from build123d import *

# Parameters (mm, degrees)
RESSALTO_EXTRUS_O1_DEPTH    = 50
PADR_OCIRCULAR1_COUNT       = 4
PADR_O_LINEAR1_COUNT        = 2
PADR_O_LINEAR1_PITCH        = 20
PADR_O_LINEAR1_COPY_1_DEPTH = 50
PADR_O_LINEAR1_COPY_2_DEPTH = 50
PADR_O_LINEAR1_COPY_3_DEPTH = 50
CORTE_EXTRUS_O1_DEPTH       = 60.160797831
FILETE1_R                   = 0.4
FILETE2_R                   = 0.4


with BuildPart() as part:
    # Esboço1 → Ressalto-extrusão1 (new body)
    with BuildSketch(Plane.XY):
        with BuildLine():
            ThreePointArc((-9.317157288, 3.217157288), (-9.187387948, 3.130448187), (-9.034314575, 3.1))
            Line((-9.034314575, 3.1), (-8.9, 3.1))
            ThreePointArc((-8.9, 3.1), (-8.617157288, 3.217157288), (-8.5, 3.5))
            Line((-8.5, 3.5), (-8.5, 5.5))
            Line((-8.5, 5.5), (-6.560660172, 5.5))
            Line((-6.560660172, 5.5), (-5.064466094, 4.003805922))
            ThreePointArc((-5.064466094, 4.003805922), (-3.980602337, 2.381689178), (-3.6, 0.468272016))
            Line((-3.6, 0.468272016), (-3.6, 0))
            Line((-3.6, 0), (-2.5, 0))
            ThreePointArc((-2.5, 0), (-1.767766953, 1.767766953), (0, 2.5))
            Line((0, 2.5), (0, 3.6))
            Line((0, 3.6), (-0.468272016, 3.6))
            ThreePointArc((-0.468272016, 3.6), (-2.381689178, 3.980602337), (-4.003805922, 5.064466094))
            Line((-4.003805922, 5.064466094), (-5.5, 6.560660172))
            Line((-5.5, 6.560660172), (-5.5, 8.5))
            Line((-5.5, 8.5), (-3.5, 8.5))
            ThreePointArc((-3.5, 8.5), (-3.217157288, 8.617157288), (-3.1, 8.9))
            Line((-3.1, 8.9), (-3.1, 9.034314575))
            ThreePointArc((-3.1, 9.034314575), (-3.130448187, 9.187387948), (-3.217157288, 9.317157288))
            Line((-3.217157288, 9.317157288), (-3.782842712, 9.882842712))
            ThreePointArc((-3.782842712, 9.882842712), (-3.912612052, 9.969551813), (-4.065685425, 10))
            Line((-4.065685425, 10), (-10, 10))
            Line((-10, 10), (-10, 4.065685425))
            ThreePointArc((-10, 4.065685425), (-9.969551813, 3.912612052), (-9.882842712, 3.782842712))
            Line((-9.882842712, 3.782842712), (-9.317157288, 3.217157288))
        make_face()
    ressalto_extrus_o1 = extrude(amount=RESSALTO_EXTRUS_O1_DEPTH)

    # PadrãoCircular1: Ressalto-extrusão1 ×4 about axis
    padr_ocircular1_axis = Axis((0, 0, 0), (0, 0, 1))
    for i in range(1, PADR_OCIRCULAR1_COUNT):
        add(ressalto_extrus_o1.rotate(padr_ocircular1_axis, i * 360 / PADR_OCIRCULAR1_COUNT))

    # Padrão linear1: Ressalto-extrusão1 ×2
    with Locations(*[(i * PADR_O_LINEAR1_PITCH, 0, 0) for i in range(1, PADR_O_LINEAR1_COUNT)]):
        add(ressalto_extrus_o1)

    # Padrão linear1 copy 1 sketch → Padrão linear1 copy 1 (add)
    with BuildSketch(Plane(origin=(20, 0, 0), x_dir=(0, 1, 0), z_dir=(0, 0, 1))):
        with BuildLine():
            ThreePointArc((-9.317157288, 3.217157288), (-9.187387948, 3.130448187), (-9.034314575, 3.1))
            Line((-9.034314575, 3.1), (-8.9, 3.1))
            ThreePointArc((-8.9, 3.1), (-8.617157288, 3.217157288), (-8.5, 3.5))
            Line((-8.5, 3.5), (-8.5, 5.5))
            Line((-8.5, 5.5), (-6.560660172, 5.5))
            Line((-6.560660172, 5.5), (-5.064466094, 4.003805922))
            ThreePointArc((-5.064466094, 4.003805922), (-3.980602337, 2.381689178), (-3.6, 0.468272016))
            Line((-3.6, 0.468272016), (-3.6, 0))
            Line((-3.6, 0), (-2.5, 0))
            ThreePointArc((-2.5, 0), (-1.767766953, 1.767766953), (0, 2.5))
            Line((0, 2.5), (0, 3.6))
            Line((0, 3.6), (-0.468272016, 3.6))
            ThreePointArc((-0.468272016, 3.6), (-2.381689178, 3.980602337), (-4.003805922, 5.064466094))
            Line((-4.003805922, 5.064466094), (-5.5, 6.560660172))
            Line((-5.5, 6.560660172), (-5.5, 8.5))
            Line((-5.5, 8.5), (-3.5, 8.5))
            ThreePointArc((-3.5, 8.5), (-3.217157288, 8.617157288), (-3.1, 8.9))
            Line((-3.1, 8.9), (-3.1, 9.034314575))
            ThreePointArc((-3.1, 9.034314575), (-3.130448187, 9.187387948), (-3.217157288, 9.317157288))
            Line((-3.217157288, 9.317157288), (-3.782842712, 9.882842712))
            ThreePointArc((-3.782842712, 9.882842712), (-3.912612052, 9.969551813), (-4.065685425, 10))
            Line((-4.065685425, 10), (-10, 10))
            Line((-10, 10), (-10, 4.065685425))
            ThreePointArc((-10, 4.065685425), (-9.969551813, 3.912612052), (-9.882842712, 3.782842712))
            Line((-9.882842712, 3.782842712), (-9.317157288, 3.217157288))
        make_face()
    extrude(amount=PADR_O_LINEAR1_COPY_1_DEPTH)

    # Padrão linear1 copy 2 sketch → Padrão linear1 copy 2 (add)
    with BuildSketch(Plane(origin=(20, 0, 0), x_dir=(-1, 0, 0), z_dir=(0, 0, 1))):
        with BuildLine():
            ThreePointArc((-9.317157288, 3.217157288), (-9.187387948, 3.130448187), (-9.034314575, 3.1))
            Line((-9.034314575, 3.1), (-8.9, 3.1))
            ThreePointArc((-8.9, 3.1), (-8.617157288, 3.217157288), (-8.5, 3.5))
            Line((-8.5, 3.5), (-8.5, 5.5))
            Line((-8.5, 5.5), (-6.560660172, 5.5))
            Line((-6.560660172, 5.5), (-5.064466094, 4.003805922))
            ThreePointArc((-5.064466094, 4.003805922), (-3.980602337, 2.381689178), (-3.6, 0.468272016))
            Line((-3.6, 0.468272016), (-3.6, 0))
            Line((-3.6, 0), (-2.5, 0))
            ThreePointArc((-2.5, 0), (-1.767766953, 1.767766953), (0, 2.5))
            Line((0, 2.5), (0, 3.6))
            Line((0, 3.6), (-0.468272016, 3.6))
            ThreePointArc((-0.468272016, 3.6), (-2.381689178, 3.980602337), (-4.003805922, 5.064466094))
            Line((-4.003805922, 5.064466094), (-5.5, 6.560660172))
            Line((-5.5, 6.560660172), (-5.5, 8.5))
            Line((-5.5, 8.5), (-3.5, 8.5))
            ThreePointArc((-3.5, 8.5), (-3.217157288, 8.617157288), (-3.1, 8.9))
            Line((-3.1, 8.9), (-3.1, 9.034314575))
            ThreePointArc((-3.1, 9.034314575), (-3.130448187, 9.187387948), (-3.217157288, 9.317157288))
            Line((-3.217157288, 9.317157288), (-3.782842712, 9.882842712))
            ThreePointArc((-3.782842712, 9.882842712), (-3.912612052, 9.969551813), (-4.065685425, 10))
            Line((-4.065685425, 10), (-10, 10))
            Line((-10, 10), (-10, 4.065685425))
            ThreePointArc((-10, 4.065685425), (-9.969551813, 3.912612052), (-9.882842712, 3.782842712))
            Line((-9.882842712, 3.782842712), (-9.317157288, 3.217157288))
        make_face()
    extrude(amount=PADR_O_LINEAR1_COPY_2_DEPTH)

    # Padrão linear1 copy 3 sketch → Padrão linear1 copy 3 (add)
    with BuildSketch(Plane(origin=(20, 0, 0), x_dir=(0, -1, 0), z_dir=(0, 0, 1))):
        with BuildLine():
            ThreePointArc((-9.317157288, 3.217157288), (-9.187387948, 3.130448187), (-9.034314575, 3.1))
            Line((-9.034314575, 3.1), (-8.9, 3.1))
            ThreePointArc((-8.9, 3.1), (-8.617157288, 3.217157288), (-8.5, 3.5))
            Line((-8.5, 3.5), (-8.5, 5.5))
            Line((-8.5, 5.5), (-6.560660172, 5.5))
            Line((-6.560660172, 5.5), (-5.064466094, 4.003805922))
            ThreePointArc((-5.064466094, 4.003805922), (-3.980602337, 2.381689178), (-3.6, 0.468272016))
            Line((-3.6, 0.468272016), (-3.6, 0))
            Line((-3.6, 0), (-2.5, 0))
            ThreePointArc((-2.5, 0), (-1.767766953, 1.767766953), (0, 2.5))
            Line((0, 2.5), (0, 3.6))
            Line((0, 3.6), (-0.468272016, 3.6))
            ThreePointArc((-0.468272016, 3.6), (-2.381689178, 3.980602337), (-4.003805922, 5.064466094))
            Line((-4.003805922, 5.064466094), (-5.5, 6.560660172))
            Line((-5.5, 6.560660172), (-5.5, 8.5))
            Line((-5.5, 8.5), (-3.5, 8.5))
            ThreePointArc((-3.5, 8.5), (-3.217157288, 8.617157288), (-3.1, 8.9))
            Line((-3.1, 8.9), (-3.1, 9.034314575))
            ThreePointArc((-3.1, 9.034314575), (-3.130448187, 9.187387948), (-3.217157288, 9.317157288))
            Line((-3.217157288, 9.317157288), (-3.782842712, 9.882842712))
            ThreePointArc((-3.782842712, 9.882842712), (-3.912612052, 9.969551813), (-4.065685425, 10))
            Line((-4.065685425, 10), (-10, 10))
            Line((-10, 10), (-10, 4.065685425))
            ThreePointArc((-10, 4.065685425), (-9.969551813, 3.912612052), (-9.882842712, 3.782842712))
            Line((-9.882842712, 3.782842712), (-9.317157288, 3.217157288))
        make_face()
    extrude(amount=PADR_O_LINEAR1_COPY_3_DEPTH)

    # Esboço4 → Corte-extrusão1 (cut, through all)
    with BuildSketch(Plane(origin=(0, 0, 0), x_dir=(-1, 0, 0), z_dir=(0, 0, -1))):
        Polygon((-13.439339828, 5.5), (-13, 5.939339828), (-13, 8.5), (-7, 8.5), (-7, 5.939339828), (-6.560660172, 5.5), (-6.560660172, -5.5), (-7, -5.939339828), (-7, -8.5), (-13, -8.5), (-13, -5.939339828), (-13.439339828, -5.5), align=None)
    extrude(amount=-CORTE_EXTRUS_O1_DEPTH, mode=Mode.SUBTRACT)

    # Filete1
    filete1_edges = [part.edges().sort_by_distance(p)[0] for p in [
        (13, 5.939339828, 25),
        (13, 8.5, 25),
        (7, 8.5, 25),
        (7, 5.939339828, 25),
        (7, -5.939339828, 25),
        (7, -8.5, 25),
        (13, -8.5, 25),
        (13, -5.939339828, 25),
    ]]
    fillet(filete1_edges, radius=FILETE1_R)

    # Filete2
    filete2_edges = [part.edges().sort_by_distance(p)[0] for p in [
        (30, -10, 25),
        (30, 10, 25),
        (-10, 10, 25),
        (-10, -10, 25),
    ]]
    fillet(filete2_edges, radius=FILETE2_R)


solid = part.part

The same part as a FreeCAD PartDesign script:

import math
import FreeCAD as App
import Part
import Sketcher
from FreeCAD import Vector
Q = App.Units.Quantity


def edges_at(feature, points):
    """Names of the edges that pass closest to the given points."""
    edges = feature.Shape.Edges
    near = lambda p: min(range(len(edges)), key=lambda i: edges[i].distToShape(Part.Vertex(*p))[0])
    return sorted({f"Edge{near(p) + 1}" for p in points})


def add_polygon(sketch, points):
    """Adds a closed chain of lines whose ends are joined by coincident constraints."""
    first, n = sketch.GeometryCount, len(points)
    for a, b in zip(points, points[1:] + points[:1]):
        sketch.addGeometry(Part.LineSegment(App.Vector(*a, 0), App.Vector(*b, 0)), False)
    for i in range(n):
        sketch.addConstraint(Sketcher.Constraint("Coincident", first + i, 2, first + (i + 1) % n, 1))

doc = App.newDocument("Part")
params = doc.addObject("Spreadsheet::Sheet", "Params")
for row, (alias, value) in enumerate([
    ("sketch1_radius", "5 mm"),
    ("sketch1_radius2", "0.4 mm"),
    ("sketch1_radius3", "2.5 mm"),
    ("sketch1_width", "2 mm"),
    ("sketch1_width2", "1.1 mm"),
    ("pad1_length", "50 mm"),
    ("linearpattern_pitch", "20 mm"),
    ("sketch2_radius", "5 mm"),
    ("sketch2_radius2", "0.4 mm"),
    ("sketch2_radius3", "2.5 mm"),
    ("sketch2_width", "2 mm"),
    ("sketch2_width2", "1.1 mm"),
    ("pad2_length", "50 mm"),
    ("sketch3_radius", "5 mm"),
    ("sketch3_radius2", "0.4 mm"),
    ("sketch3_radius3", "2.5 mm"),
    ("sketch3_width", "2 mm"),
    ("sketch3_width2", "1.1 mm"),
    ("pad3_length", "50 mm"),
    ("sketch4_radius", "5 mm"),
    ("sketch4_radius2", "0.4 mm"),
    ("sketch4_radius3", "2.5 mm"),
    ("sketch4_width", "2 mm"),
    ("sketch4_width2", "1.1 mm"),
    ("pad4_length", "50 mm"),
    ("sketch5_width", "6 mm"),
    ("sketch5_height", "11 mm"),
    ("fillet_radius", "0.4 mm"),
    ("fillet2_radius", "0.4 mm"),
], start=1):
    params.set(f"A{row}", alias)
    params.set(f"B{row}", "=" + value)
    params.setAlias(f"B{row}", alias)

body = doc.addObject("PartDesign::Body", "Body")

# Sketch on XY plane
sketch1 = body.newObject("Sketcher::SketchObject", "Sketch")
sketch1.AttachmentSupport = (doc.getObject("XY_Plane"), [""])
sketch1.MapMode = "FlatFace"
sketch1.addGeometry([
    Part.ArcOfCircle(Part.Circle(Vector(-9.03, 3.5, 0), Vector(0, 0, 1), 0.4), math.radians(-135), math.radians(-90)),  # 0
    Part.LineSegment(Vector(-9.03, 3.1, 0), Vector(-8.9, 3.1, 0)),  # 1
    Part.ArcOfCircle(Part.Circle(Vector(-8.9, 3.5, 0), Vector(0, 0, 1), 0.4), math.radians(-90), math.radians(0)),  # 2
    Part.LineSegment(Vector(-8.5, 3.5, 0), Vector(-8.5, 5.5, 0)),  # 3
    Part.LineSegment(Vector(-8.5, 5.5, 0), Vector(-6.56, 5.5, 0)),  # 4
    Part.LineSegment(Vector(-6.56, 5.5, 0), Vector(-5.06, 4, 0)),  # 5
    Part.ArcOfCircle(Part.Circle(Vector(-8.6, 0.47, 0), Vector(0, 0, 1), 5), math.radians(0), math.radians(45)),  # 6
    Part.LineSegment(Vector(-3.6, 0.47, 0), Vector(-3.6, 0, 0)),  # 7
    Part.LineSegment(Vector(-3.6, 0, 0), Vector(-2.5, 0, 0)),  # 8
    Part.ArcOfCircle(Part.Circle(Vector(0, 0, 0), Vector(0, 0, 1), 2.5), math.radians(90), math.radians(180)),  # 9
    Part.LineSegment(Vector(0, 2.5, 0), Vector(0, 3.6, 0)),  # 10
    Part.LineSegment(Vector(0, 3.6, 0), Vector(-0.47, 3.6, 0)),  # 11
    Part.ArcOfCircle(Part.Circle(Vector(-0.47, 8.6, 0), Vector(0, 0, 1), 5), math.radians(-135), math.radians(-90)),  # 12
    Part.LineSegment(Vector(-4, 5.06, 0), Vector(-5.5, 6.56, 0)),  # 13
    Part.LineSegment(Vector(-5.5, 6.56, 0), Vector(-5.5, 8.5, 0)),  # 14
    Part.LineSegment(Vector(-5.5, 8.5, 0), Vector(-3.5, 8.5, 0)),  # 15
    Part.ArcOfCircle(Part.Circle(Vector(-3.5, 8.9, 0), Vector(0, 0, 1), 0.4), math.radians(-90), math.radians(0)),  # 16
    Part.LineSegment(Vector(-3.1, 8.9, 0), Vector(-3.1, 9.03, 0)),  # 17
    Part.ArcOfCircle(Part.Circle(Vector(-3.5, 9.03, 0), Vector(0, 0, 1), 0.4), math.radians(0), math.radians(45)),  # 18
    Part.LineSegment(Vector(-3.22, 9.32, 0), Vector(-3.78, 9.88, 0)),  # 19
    Part.ArcOfCircle(Part.Circle(Vector(-4.07, 9.6, 0), Vector(0, 0, 1), 0.4), math.radians(45), math.radians(90)),  # 20
    Part.LineSegment(Vector(-4.07, 10, 0), Vector(-10, 10, 0)),  # 21
    Part.LineSegment(Vector(-10, 10, 0), Vector(-10, 4.07, 0)),  # 22
    Part.ArcOfCircle(Part.Circle(Vector(-9.6, 4.07, 0), Vector(0, 0, 1), 0.4), math.radians(180), math.radians(225)),  # 23
    Part.LineSegment(Vector(-9.88, 3.78, 0), Vector(-9.32, 3.22, 0)),  # 24
], False)
sketch1.addConstraint([
    Sketcher.Constraint("Tangent", 0, 2, 1, 1),
    Sketcher.Constraint("Tangent", 1, 2, 2, 1),
    Sketcher.Constraint("Tangent", 2, 2, 3, 1),
    Sketcher.Constraint("Coincident", 3, 2, 4, 1),
    Sketcher.Constraint("Coincident", 4, 2, 5, 1),
    Sketcher.Constraint("Tangent", 5, 2, 6, 2),
    Sketcher.Constraint("Tangent", 6, 1, 7, 1),
    Sketcher.Constraint("Coincident", 7, 2, 8, 1),
    Sketcher.Constraint("Coincident", 8, 2, 9, 2),
    Sketcher.Constraint("Coincident", 9, 1, 10, 1),
    Sketcher.Constraint("Coincident", 10, 2, 11, 1),
    Sketcher.Constraint("Tangent", 11, 2, 12, 2),
    Sketcher.Constraint("Tangent", 12, 1, 13, 1),
    Sketcher.Constraint("Coincident", 13, 2, 14, 1),
    Sketcher.Constraint("Coincident", 14, 2, 15, 1),
    Sketcher.Constraint("Tangent", 15, 2, 16, 1),
    Sketcher.Constraint("Tangent", 16, 2, 17, 1),
    Sketcher.Constraint("Tangent", 17, 2, 18, 1),
    Sketcher.Constraint("Tangent", 18, 2, 19, 1),
    Sketcher.Constraint("Tangent", 19, 2, 20, 1),
    Sketcher.Constraint("Tangent", 20, 2, 21, 1),
    Sketcher.Constraint("Coincident", 21, 2, 22, 1),
    Sketcher.Constraint("Tangent", 22, 2, 23, 1),
    Sketcher.Constraint("Tangent", 23, 2, 24, 1),
    Sketcher.Constraint("Tangent", 24, 2, 0, 1),
    Sketcher.Constraint("Horizontal", 1),
    Sketcher.Constraint("Vertical", 3),
    Sketcher.Constraint("Horizontal", 4),
    Sketcher.Constraint("Vertical", 7),
    Sketcher.Constraint("Horizontal", 8),
    Sketcher.Constraint("Vertical", 10),
    Sketcher.Constraint("Horizontal", 11),
    Sketcher.Constraint("Vertical", 14),
    Sketcher.Constraint("Horizontal", 15),
    Sketcher.Constraint("Vertical", 17),
    Sketcher.Constraint("Horizontal", 21),
    Sketcher.Constraint("Vertical", 22),
    Sketcher.Constraint("Coincident", 9, 3, -1, 1),
    Sketcher.Constraint("Equal", 0, 2),
    Sketcher.Constraint("Equal", 6, 12),
    Sketcher.Constraint("Equal", 2, 16),
    Sketcher.Constraint("Equal", 16, 18),
    Sketcher.Constraint("Equal", 18, 20),
    Sketcher.Constraint("Equal", 20, 23),
    Sketcher.Constraint("PointOnObject", 7, 2, -1),
    Sketcher.Constraint("PointOnObject", 9, 1, -2),
    Sketcher.Constraint("Parallel", 5, 13),
    Sketcher.Constraint("Parallel", 13, 19),
    Sketcher.Constraint("Parallel", 19, 24),
    Sketcher.Constraint("Equal", 15, 3),
    Sketcher.Constraint("Equal", 11, 7),
    Sketcher.Constraint("Equal", 8, 10),
    Sketcher.Constraint("Equal", 4, 14),
    Sketcher.Constraint("Equal", 1, 17),
    Sketcher.Constraint("Equal", 21, 22),
    Sketcher.Constraint("Equal", 5, 13),
    Sketcher.Constraint("Equal", 19, 24),
    Sketcher.Constraint("Radius", 6, 5.0),
    Sketcher.Constraint("Radius", 0, 0.4),
    Sketcher.Constraint("Radius", 9, 2.5),
    Sketcher.Constraint("DistanceX", 15, 1, 15, 2, 2.0),
    Sketcher.Constraint("DistanceX", 8, 1, 8, 2, 1.1),
    Sketcher.Constraint("DistanceY", -1, 1, 20, 2, 10.0),
    Sketcher.Constraint("DistanceY", 4, 2, 14, 2, 3.0),
    Sketcher.Constraint("Distance", 19, 0.8),
    Sketcher.Constraint("DistanceY", -1, 1, 0, 3, 3.5),
    Sketcher.Constraint("DistanceX", 4, 1, 4, 2, 1.93934),
])
sketch1.setExpression("Constraints[57]", "Params.sketch1_radius")
sketch1.setExpression("Constraints[58]", "Params.sketch1_radius2")
sketch1.setExpression("Constraints[59]", "Params.sketch1_radius3")
sketch1.setExpression("Constraints[60]", "Params.sketch1_width")
sketch1.setExpression("Constraints[61]", "Params.sketch1_width2")
pad1 = body.newObject("PartDesign::Pad", "Pad")
pad1.Profile = sketch1
pad1.setExpression("Length", "Params.pad1_length")
doc.recompute()

polarpattern = body.newObject("PartDesign::PolarPattern", "PolarPattern")
polarpattern.Originals = [pad1]
polarpattern.Axis = (doc.getObject("Z_Axis"), [""])
polarpattern.Angle = 360
polarpattern.Occurrences = 4
body.Tip = polarpattern
doc.recompute()

linearpattern = body.newObject("PartDesign::LinearPattern", "LinearPattern")
linearpattern.Originals = [pad1]
linearpattern.Direction = (doc.getObject("X_Axis"), [""])
linearpattern.Mode = "offset"
linearpattern.setExpression("Offset", "Params.linearpattern_pitch")
linearpattern.Occurrences = 2
body.Tip = linearpattern

# Sketch on XY plane
sketch2 = body.newObject("Sketcher::SketchObject", "Sketch001")
sketch2.AttachmentSupport = (doc.getObject("XY_Plane"), [""])
sketch2.MapMode = "FlatFace"
sketch2.addGeometry([
    Part.ArcOfCircle(Part.Circle(Vector(16.5, -9.03, 0), Vector(0, 0, 1), 0.4), math.radians(-45), math.radians(0)),  # 0
    Part.LineSegment(Vector(16.9, -9.03, 0), Vector(16.9, -8.9, 0)),  # 1
    Part.ArcOfCircle(Part.Circle(Vector(16.5, -8.9, 0), Vector(0, 0, 1), 0.4), math.radians(0), math.radians(90)),  # 2
    Part.LineSegment(Vector(16.5, -8.5, 0), Vector(14.5, -8.5, 0)),  # 3
    Part.LineSegment(Vector(14.5, -8.5, 0), Vector(14.5, -6.56, 0)),  # 4
    Part.LineSegment(Vector(14.5, -6.56, 0), Vector(16, -5.06, 0)),  # 5
    Part.ArcOfCircle(Part.Circle(Vector(19.53, -8.6, 0), Vector(0, 0, 1), 5), math.radians(90), math.radians(135)),  # 6
    Part.LineSegment(Vector(19.53, -3.6, 0), Vector(20, -3.6, 0)),  # 7
    Part.LineSegment(Vector(20, -3.6, 0), Vector(20, -2.5, 0)),  # 8
    Part.ArcOfCircle(Part.Circle(Vector(20, 0, 0), Vector(0, 0, 1), 2.5), math.radians(180), math.radians(270)),  # 9
    Part.LineSegment(Vector(17.5, 0, 0), Vector(16.4, 0, 0)),  # 10
    Part.LineSegment(Vector(16.4, 0, 0), Vector(16.4, -0.47, 0)),  # 11
    Part.ArcOfCircle(Part.Circle(Vector(11.4, -0.47, 0), Vector(0, 0, 1), 5), math.radians(-45), math.radians(0)),  # 12
    Part.LineSegment(Vector(14.94, -4, 0), Vector(13.44, -5.5, 0)),  # 13
    Part.LineSegment(Vector(13.44, -5.5, 0), Vector(11.5, -5.5, 0)),  # 14
    Part.LineSegment(Vector(11.5, -5.5, 0), Vector(11.5, -3.5, 0)),  # 15
    Part.ArcOfCircle(Part.Circle(Vector(11.1, -3.5, 0), Vector(0, 0, 1), 0.4), math.radians(0), math.radians(90)),  # 16
    Part.LineSegment(Vector(11.1, -3.1, 0), Vector(10.97, -3.1, 0)),  # 17
    Part.ArcOfCircle(Part.Circle(Vector(10.97, -3.5, 0), Vector(0, 0, 1), 0.4), math.radians(90), math.radians(135)),  # 18
    Part.LineSegment(Vector(10.68, -3.22, 0), Vector(10.12, -3.78, 0)),  # 19
    Part.ArcOfCircle(Part.Circle(Vector(10.4, -4.07, 0), Vector(0, 0, 1), 0.4), math.radians(135), math.radians(180)),  # 20
    Part.LineSegment(Vector(10, -4.07, 0), Vector(10, -10, 0)),  # 21
    Part.LineSegment(Vector(10, -10, 0), Vector(15.93, -10, 0)),  # 22
    Part.ArcOfCircle(Part.Circle(Vector(15.93, -9.6, 0), Vector(0, 0, 1), 0.4), math.radians(-90), math.radians(-45)),  # 23
    Part.LineSegment(Vector(16.22, -9.88, 0), Vector(16.78, -9.32, 0)),  # 24
], False)
sketch2.addConstraint([
    Sketcher.Constraint("Tangent", 0, 2, 1, 1),
    Sketcher.Constraint("Tangent", 1, 2, 2, 1),
    Sketcher.Constraint("Tangent", 2, 2, 3, 1),
    Sketcher.Constraint("Coincident", 3, 2, 4, 1),
    Sketcher.Constraint("Coincident", 4, 2, 5, 1),
    Sketcher.Constraint("Tangent", 5, 2, 6, 2),
    Sketcher.Constraint("Tangent", 6, 1, 7, 1),
    Sketcher.Constraint("Coincident", 7, 2, 8, 1),
    Sketcher.Constraint("Coincident", 8, 2, 9, 2),
    Sketcher.Constraint("Coincident", 9, 1, 10, 1),
    Sketcher.Constraint("Coincident", 10, 2, 11, 1),
    Sketcher.Constraint("Tangent", 11, 2, 12, 2),
    Sketcher.Constraint("Tangent", 12, 1, 13, 1),
    Sketcher.Constraint("Coincident", 13, 2, 14, 1),
    Sketcher.Constraint("Coincident", 14, 2, 15, 1),
    Sketcher.Constraint("Tangent", 15, 2, 16, 1),
    Sketcher.Constraint("Tangent", 16, 2, 17, 1),
    Sketcher.Constraint("Tangent", 17, 2, 18, 1),
    Sketcher.Constraint("Tangent", 18, 2, 19, 1),
    Sketcher.Constraint("Tangent", 19, 2, 20, 1),
    Sketcher.Constraint("Tangent", 20, 2, 21, 1),
    Sketcher.Constraint("Coincident", 21, 2, 22, 1),
    Sketcher.Constraint("Tangent", 22, 2, 23, 1),
    Sketcher.Constraint("Tangent", 23, 2, 24, 1),
    Sketcher.Constraint("Tangent", 24, 2, 0, 1),
    Sketcher.Constraint("Vertical", 1),
    Sketcher.Constraint("Horizontal", 3),
    Sketcher.Constraint("Vertical", 4),
    Sketcher.Constraint("Horizontal", 7),
    Sketcher.Constraint("Vertical", 8),
    Sketcher.Constraint("Horizontal", 10),
    Sketcher.Constraint("Vertical", 11),
    Sketcher.Constraint("Horizontal", 14),
    Sketcher.Constraint("Vertical", 15),
    Sketcher.Constraint("Horizontal", 17),
    Sketcher.Constraint("Vertical", 21),
    Sketcher.Constraint("Horizontal", 22),
    Sketcher.Constraint("Equal", 0, 2),
    Sketcher.Constraint("Equal", 6, 12),
    Sketcher.Constraint("Equal", 2, 16),
    Sketcher.Constraint("Equal", 16, 18),
    Sketcher.Constraint("Equal", 18, 20),
    Sketcher.Constraint("Equal", 20, 23),
    Sketcher.Constraint("PointOnObject", 9, 3, -1),
    Sketcher.Constraint("PointOnObject", 9, 1, -1),
    Sketcher.Constraint("Parallel", 5, 13),
    Sketcher.Constraint("Parallel", 13, 19),
    Sketcher.Constraint("Parallel", 19, 24),
    Sketcher.Constraint("Vertical", 9, 3, 7, 2),
    Sketcher.Constraint("Equal", 17, 1),
    Sketcher.Constraint("Equal", 14, 4),
    Sketcher.Constraint("Equal", 10, 8),
    Sketcher.Constraint("Equal", 7, 11),
    Sketcher.Constraint("Equal", 3, 15),
    Sketcher.Constraint("Equal", 22, 21),
    Sketcher.Constraint("Equal", 5, 13),
    Sketcher.Constraint("Equal", 19, 24),
    Sketcher.Constraint("Radius", 6, 5.0),
    Sketcher.Constraint("Radius", 0, 0.4),
    Sketcher.Constraint("Radius", 9, 2.5),
    Sketcher.Constraint("DistanceX", 3, 2, 3, 1, 2.0),
    Sketcher.Constraint("DistanceX", 10, 2, 10, 1, 1.1),
    Sketcher.Constraint("DistanceX", -1, 1, 9, 3, 20.0),
    Sketcher.Constraint("DistanceX", -1, 1, 20, 2, 10.0),
    Sketcher.Constraint("DistanceX", 14, 2, 4, 2, 3.0),
    Sketcher.Constraint("Distance", 19, 0.8),
    Sketcher.Constraint("DistanceX", -1, 1, 0, 3, 16.5),
    Sketcher.Constraint("DistanceX", 14, 2, 14, 1, 1.93934),
])
sketch2.setExpression("Constraints[57]", "Params.sketch2_radius")
sketch2.setExpression("Constraints[58]", "Params.sketch2_radius2")
sketch2.setExpression("Constraints[59]", "Params.sketch2_radius3")
sketch2.setExpression("Constraints[60]", "Params.sketch2_width")
sketch2.setExpression("Constraints[61]", "Params.sketch2_width2")
pad2 = body.newObject("PartDesign::Pad", "Pad001")
pad2.Profile = sketch2
pad2.setExpression("Length", "Params.pad2_length")

# Sketch on XY plane
sketch3 = body.newObject("Sketcher::SketchObject", "Sketch002")
sketch3.AttachmentSupport = (doc.getObject("XY_Plane"), [""])
sketch3.MapMode = "FlatFace"
sketch3.addGeometry([
    Part.ArcOfCircle(Part.Circle(Vector(29.03, -3.5, 0), Vector(0, 0, 1), 0.4), math.radians(45), math.radians(90)),  # 0
    Part.LineSegment(Vector(29.03, -3.1, 0), Vector(28.9, -3.1, 0)),  # 1
    Part.ArcOfCircle(Part.Circle(Vector(28.9, -3.5, 0), Vector(0, 0, 1), 0.4), math.radians(90), math.radians(180)),  # 2
    Part.LineSegment(Vector(28.5, -3.5, 0), Vector(28.5, -5.5, 0)),  # 3
    Part.LineSegment(Vector(28.5, -5.5, 0), Vector(26.56, -5.5, 0)),  # 4
    Part.LineSegment(Vector(26.56, -5.5, 0), Vector(25.06, -4, 0)),  # 5
    Part.ArcOfCircle(Part.Circle(Vector(28.6, -0.47, 0), Vector(0, 0, 1), 5), math.radians(180), math.radians(225)),  # 6
    Part.LineSegment(Vector(23.6, -0.47, 0), Vector(23.6, 0, 0)),  # 7
    Part.LineSegment(Vector(23.6, 0, 0), Vector(22.5, 0, 0)),  # 8
    Part.ArcOfCircle(Part.Circle(Vector(20, 0, 0), Vector(0, 0, 1), 2.5), math.radians(-90), math.radians(0)),  # 9
    Part.LineSegment(Vector(20, -2.5, 0), Vector(20, -3.6, 0)),  # 10
    Part.LineSegment(Vector(20, -3.6, 0), Vector(20.47, -3.6, 0)),  # 11
    Part.ArcOfCircle(Part.Circle(Vector(20.47, -8.6, 0), Vector(0, 0, 1), 5), math.radians(45), math.radians(90)),  # 12
    Part.LineSegment(Vector(24, -5.06, 0), Vector(25.5, -6.56, 0)),  # 13
    Part.LineSegment(Vector(25.5, -6.56, 0), Vector(25.5, -8.5, 0)),  # 14
    Part.LineSegment(Vector(25.5, -8.5, 0), Vector(23.5, -8.5, 0)),  # 15
    Part.ArcOfCircle(Part.Circle(Vector(23.5, -8.9, 0), Vector(0, 0, 1), 0.4), math.radians(90), math.radians(180)),  # 16
    Part.LineSegment(Vector(23.1, -8.9, 0), Vector(23.1, -9.03, 0)),  # 17
    Part.ArcOfCircle(Part.Circle(Vector(23.5, -9.03, 0), Vector(0, 0, 1), 0.4), math.radians(180), math.radians(225)),  # 18
    Part.LineSegment(Vector(23.22, -9.32, 0), Vector(23.78, -9.88, 0)),  # 19
    Part.ArcOfCircle(Part.Circle(Vector(24.07, -9.6, 0), Vector(0, 0, 1), 0.4), math.radians(-135), math.radians(-90)),  # 20
    Part.LineSegment(Vector(24.07, -10, 0), Vector(30, -10, 0)),  # 21
    Part.LineSegment(Vector(30, -10, 0), Vector(30, -4.07, 0)),  # 22
    Part.ArcOfCircle(Part.Circle(Vector(29.6, -4.07, 0), Vector(0, 0, 1), 0.4), math.radians(0), math.radians(45)),  # 23
    Part.LineSegment(Vector(29.88, -3.78, 0), Vector(29.32, -3.22, 0)),  # 24
], False)
sketch3.addConstraint([
    Sketcher.Constraint("Tangent", 0, 2, 1, 1),
    Sketcher.Constraint("Tangent", 1, 2, 2, 1),
    Sketcher.Constraint("Tangent", 2, 2, 3, 1),
    Sketcher.Constraint("Coincident", 3, 2, 4, 1),
    Sketcher.Constraint("Coincident", 4, 2, 5, 1),
    Sketcher.Constraint("Tangent", 5, 2, 6, 2),
    Sketcher.Constraint("Tangent", 6, 1, 7, 1),
    Sketcher.Constraint("Coincident", 7, 2, 8, 1),
    Sketcher.Constraint("Coincident", 8, 2, 9, 2),
    Sketcher.Constraint("Coincident", 9, 1, 10, 1),
    Sketcher.Constraint("Coincident", 10, 2, 11, 1),
    Sketcher.Constraint("Tangent", 11, 2, 12, 2),
    Sketcher.Constraint("Tangent", 12, 1, 13, 1),
    Sketcher.Constraint("Coincident", 13, 2, 14, 1),
    Sketcher.Constraint("Coincident", 14, 2, 15, 1),
    Sketcher.Constraint("Tangent", 15, 2, 16, 1),
    Sketcher.Constraint("Tangent", 16, 2, 17, 1),
    Sketcher.Constraint("Tangent", 17, 2, 18, 1),
    Sketcher.Constraint("Tangent", 18, 2, 19, 1),
    Sketcher.Constraint("Tangent", 19, 2, 20, 1),
    Sketcher.Constraint("Tangent", 20, 2, 21, 1),
    Sketcher.Constraint("Coincident", 21, 2, 22, 1),
    Sketcher.Constraint("Tangent", 22, 2, 23, 1),
    Sketcher.Constraint("Tangent", 23, 2, 24, 1),
    Sketcher.Constraint("Tangent", 24, 2, 0, 1),
    Sketcher.Constraint("Horizontal", 1),
    Sketcher.Constraint("Vertical", 3),
    Sketcher.Constraint("Horizontal", 4),
    Sketcher.Constraint("Vertical", 7),
    Sketcher.Constraint("Horizontal", 8),
    Sketcher.Constraint("Vertical", 10),
    Sketcher.Constraint("Horizontal", 11),
    Sketcher.Constraint("Vertical", 14),
    Sketcher.Constraint("Horizontal", 15),
    Sketcher.Constraint("Vertical", 17),
    Sketcher.Constraint("Horizontal", 21),
    Sketcher.Constraint("Vertical", 22),
    Sketcher.Constraint("Equal", 0, 2),
    Sketcher.Constraint("Equal", 6, 12),
    Sketcher.Constraint("Equal", 2, 16),
    Sketcher.Constraint("Equal", 16, 18),
    Sketcher.Constraint("Equal", 18, 20),
    Sketcher.Constraint("Equal", 20, 23),
    Sketcher.Constraint("PointOnObject", 9, 3, -1),
    Sketcher.Constraint("PointOnObject", 7, 2, -1),
    Sketcher.Constraint("Parallel", 5, 13),
    Sketcher.Constraint("Parallel", 13, 19),
    Sketcher.Constraint("Parallel", 19, 24),
    Sketcher.Constraint("Equal", 15, 3),
    Sketcher.Constraint("Equal", 11, 7),
    Sketcher.Constraint("Equal", 8, 10),
    Sketcher.Constraint("Equal", 4, 14),
    Sketcher.Constraint("Equal", 1, 17),
    Sketcher.Constraint("Equal", 21, 22),
    Sketcher.Constraint("Equal", 5, 13),
    Sketcher.Constraint("Equal", 19, 24),
    Sketcher.Constraint("Radius", 6, 5.0),
    Sketcher.Constraint("Radius", 0, 0.4),
    Sketcher.Constraint("Radius", 9, 2.5),
    Sketcher.Constraint("DistanceX", 15, 2, 15, 1, 2.0),
    Sketcher.Constraint("Angle", 5, Q("135 deg")),
    Sketcher.Constraint("DistanceX", 8, 2, 8, 1, 1.1),
    Sketcher.Constraint("DistanceX", -1, 1, 9, 3, 20.0),
    Sketcher.Constraint("DistanceY", 20, 2, -1, 1, 10.0),
    Sketcher.Constraint("DistanceY", 14, 2, 4, 2, 3.0),
    Sketcher.Constraint("Distance", 19, 0.8),
    Sketcher.Constraint("DistanceY", 0, 3, -1, 1, 3.5),
    Sketcher.Constraint("DistanceX", 4, 2, 4, 1, 1.93934),
])
sketch3.setExpression("Constraints[56]", "Params.sketch3_radius")
sketch3.setExpression("Constraints[57]", "Params.sketch3_radius2")
sketch3.setExpression("Constraints[58]", "Params.sketch3_radius3")
sketch3.setExpression("Constraints[59]", "Params.sketch3_width")
sketch3.setExpression("Constraints[61]", "Params.sketch3_width2")
pad3 = body.newObject("PartDesign::Pad", "Pad002")
pad3.Profile = sketch3
pad3.setExpression("Length", "Params.pad3_length")

# Sketch on XY plane
sketch4 = body.newObject("Sketcher::SketchObject", "Sketch003")
sketch4.AttachmentSupport = (doc.getObject("XY_Plane"), [""])
sketch4.MapMode = "FlatFace"
sketch4.addGeometry([
    Part.ArcOfCircle(Part.Circle(Vector(23.5, 9.03, 0), Vector(0, 0, 1), 0.4), math.radians(135), math.radians(180)),  # 0
    Part.LineSegment(Vector(23.1, 9.03, 0), Vector(23.1, 8.9, 0)),  # 1
    Part.ArcOfCircle(Part.Circle(Vector(23.5, 8.9, 0), Vector(0, 0, 1), 0.4), math.radians(-180), math.radians(-90)),  # 2
    Part.LineSegment(Vector(23.5, 8.5, 0), Vector(25.5, 8.5, 0)),  # 3
    Part.LineSegment(Vector(25.5, 8.5, 0), Vector(25.5, 6.56, 0)),  # 4
    Part.LineSegment(Vector(25.5, 6.56, 0), Vector(24, 5.06, 0)),  # 5
    Part.ArcOfCircle(Part.Circle(Vector(20.47, 8.6, 0), Vector(0, 0, 1), 5), math.radians(-90), math.radians(-45)),  # 6
    Part.LineSegment(Vector(20.47, 3.6, 0), Vector(20, 3.6, 0)),  # 7
    Part.LineSegment(Vector(20, 3.6, 0), Vector(20, 2.5, 0)),  # 8
    Part.ArcOfCircle(Part.Circle(Vector(20, 0, 0), Vector(0, 0, 1), 2.5), math.radians(0), math.radians(90)),  # 9
    Part.LineSegment(Vector(22.5, 0, 0), Vector(23.6, 0, 0)),  # 10
    Part.LineSegment(Vector(23.6, 0, 0), Vector(23.6, 0.47, 0)),  # 11
    Part.ArcOfCircle(Part.Circle(Vector(28.6, 0.47, 0), Vector(0, 0, 1), 5), math.radians(135), math.radians(180)),  # 12
    Part.LineSegment(Vector(25.06, 4, 0), Vector(26.56, 5.5, 0)),  # 13
    Part.LineSegment(Vector(26.56, 5.5, 0), Vector(28.5, 5.5, 0)),  # 14
    Part.LineSegment(Vector(28.5, 5.5, 0), Vector(28.5, 3.5, 0)),  # 15
    Part.ArcOfCircle(Part.Circle(Vector(28.9, 3.5, 0), Vector(0, 0, 1), 0.4), math.radians(-180), math.radians(-90)),  # 16
    Part.LineSegment(Vector(28.9, 3.1, 0), Vector(29.03, 3.1, 0)),  # 17
    Part.ArcOfCircle(Part.Circle(Vector(29.03, 3.5, 0), Vector(0, 0, 1), 0.4), math.radians(-90), math.radians(-45)),  # 18
    Part.LineSegment(Vector(29.32, 3.22, 0), Vector(29.88, 3.78, 0)),  # 19
    Part.ArcOfCircle(Part.Circle(Vector(29.6, 4.07, 0), Vector(0, 0, 1), 0.4), math.radians(-45), math.radians(0)),  # 20
    Part.LineSegment(Vector(30, 4.07, 0), Vector(30, 10, 0)),  # 21
    Part.LineSegment(Vector(30, 10, 0), Vector(24.07, 10, 0)),  # 22
    Part.ArcOfCircle(Part.Circle(Vector(24.07, 9.6, 0), Vector(0, 0, 1), 0.4), math.radians(90), math.radians(135)),  # 23
    Part.LineSegment(Vector(23.78, 9.88, 0), Vector(23.22, 9.32, 0)),  # 24
], False)
sketch4.addConstraint([
    Sketcher.Constraint("Tangent", 0, 2, 1, 1),
    Sketcher.Constraint("Tangent", 1, 2, 2, 1),
    Sketcher.Constraint("Tangent", 2, 2, 3, 1),
    Sketcher.Constraint("Coincident", 3, 2, 4, 1),
    Sketcher.Constraint("Coincident", 4, 2, 5, 1),
    Sketcher.Constraint("Tangent", 5, 2, 6, 2),
    Sketcher.Constraint("Tangent", 6, 1, 7, 1),
    Sketcher.Constraint("Coincident", 7, 2, 8, 1),
    Sketcher.Constraint("Coincident", 8, 2, 9, 2),
    Sketcher.Constraint("Coincident", 9, 1, 10, 1),
    Sketcher.Constraint("Coincident", 10, 2, 11, 1),
    Sketcher.Constraint("Tangent", 11, 2, 12, 2),
    Sketcher.Constraint("Tangent", 12, 1, 13, 1),
    Sketcher.Constraint("Coincident", 13, 2, 14, 1),
    Sketcher.Constraint("Coincident", 14, 2, 15, 1),
    Sketcher.Constraint("Tangent", 15, 2, 16, 1),
    Sketcher.Constraint("Tangent", 16, 2, 17, 1),
    Sketcher.Constraint("Tangent", 17, 2, 18, 1),
    Sketcher.Constraint("Tangent", 18, 2, 19, 1),
    Sketcher.Constraint("Tangent", 19, 2, 20, 1),
    Sketcher.Constraint("Tangent", 20, 2, 21, 1),
    Sketcher.Constraint("Coincident", 21, 2, 22, 1),
    Sketcher.Constraint("Tangent", 22, 2, 23, 1),
    Sketcher.Constraint("Tangent", 23, 2, 24, 1),
    Sketcher.Constraint("Tangent", 24, 2, 0, 1),
    Sketcher.Constraint("Vertical", 1),
    Sketcher.Constraint("Horizontal", 3),
    Sketcher.Constraint("Vertical", 4),
    Sketcher.Constraint("Horizontal", 7),
    Sketcher.Constraint("Vertical", 8),
    Sketcher.Constraint("Horizontal", 10),
    Sketcher.Constraint("Vertical", 11),
    Sketcher.Constraint("Horizontal", 14),
    Sketcher.Constraint("Vertical", 15),
    Sketcher.Constraint("Horizontal", 17),
    Sketcher.Constraint("Vertical", 21),
    Sketcher.Constraint("Horizontal", 22),
    Sketcher.Constraint("Equal", 0, 2),
    Sketcher.Constraint("Equal", 6, 12),
    Sketcher.Constraint("Equal", 2, 16),
    Sketcher.Constraint("Equal", 16, 18),
    Sketcher.Constraint("Equal", 18, 20),
    Sketcher.Constraint("Equal", 20, 23),
    Sketcher.Constraint("PointOnObject", 9, 3, -1),
    Sketcher.Constraint("PointOnObject", 9, 1, -1),
    Sketcher.Constraint("Parallel", 5, 13),
    Sketcher.Constraint("Parallel", 13, 19),
    Sketcher.Constraint("Parallel", 19, 24),
    Sketcher.Constraint("Vertical", 9, 3, 7, 2),
    Sketcher.Constraint("Equal", 17, 1),
    Sketcher.Constraint("Equal", 14, 4),
    Sketcher.Constraint("Equal", 10, 8),
    Sketcher.Constraint("Equal", 7, 11),
    Sketcher.Constraint("Equal", 3, 15),
    Sketcher.Constraint("Equal", 22, 21),
    Sketcher.Constraint("Equal", 5, 13),
    Sketcher.Constraint("Equal", 19, 24),
    Sketcher.Constraint("Radius", 6, 5.0),
    Sketcher.Constraint("Radius", 0, 0.4),
    Sketcher.Constraint("Radius", 9, 2.5),
    Sketcher.Constraint("DistanceX", 3, 1, 3, 2, 2.0),
    Sketcher.Constraint("DistanceX", 10, 1, 10, 2, 1.1),
    Sketcher.Constraint("DistanceX", -1, 1, 9, 3, 20.0),
    Sketcher.Constraint("DistanceX", -1, 1, 20, 2, 30.0),
    Sketcher.Constraint("DistanceX", 4, 2, 14, 2, 3.0),
    Sketcher.Constraint("Distance", 19, 0.8),
    Sketcher.Constraint("DistanceX", -1, 1, 0, 3, 23.5),
    Sketcher.Constraint("DistanceX", 14, 1, 14, 2, 1.93934),
])
sketch4.setExpression("Constraints[57]", "Params.sketch4_radius")
sketch4.setExpression("Constraints[58]", "Params.sketch4_radius2")
sketch4.setExpression("Constraints[59]", "Params.sketch4_radius3")
sketch4.setExpression("Constraints[60]", "Params.sketch4_width")
sketch4.setExpression("Constraints[61]", "Params.sketch4_width2")
pad4 = body.newObject("PartDesign::Pad", "Pad003")
pad4.Profile = sketch4
pad4.setExpression("Length", "Params.pad4_length")

# Sketch on XY plane
sketch5 = body.newObject("Sketcher::SketchObject", "Sketch004")
sketch5.AttachmentSupport = (doc.getObject("XY_Plane"), [""])
sketch5.MapMode = "FlatFace"
add_polygon(sketch5, [(13, 5.9), (13.4, 5.5), (13.4, -5.5), (13, -5.9), (13, -8.5), (7, -8.5), (7, -5.9), (6.6, -5.5), (6.6, 5.5), (7, 5.9), (7, 8.5), (13, 8.5)])  # lines 0-11
sketch5.addConstraint([
    Sketcher.Constraint("Vertical", 1),
    Sketcher.Constraint("Vertical", 3),
    Sketcher.Constraint("Horizontal", 4),
    Sketcher.Constraint("Vertical", 5),
    Sketcher.Constraint("Vertical", 7),
    Sketcher.Constraint("Vertical", 9),
    Sketcher.Constraint("Horizontal", 10),
    Sketcher.Constraint("Vertical", 11),
    Sketcher.Constraint("Symmetric", 5, 2, 8, 2, -1),
    Sketcher.Constraint("Symmetric", 3, 2, 10, 2, -1),
    Sketcher.Constraint("Perpendicular", 0, 2),
    Sketcher.Constraint("Perpendicular", 2, 6),
    Sketcher.Constraint("Perpendicular", 6, 8),
    Sketcher.Constraint("Horizontal", 2, 2, 5, 2),
    Sketcher.Constraint("Horizontal", 1, 2, 6, 2),
    Sketcher.Constraint("Horizontal", 0, 2, 7, 2),
    Sketcher.Constraint("Horizontal", 8, 2, 11, 2),
    Sketcher.Constraint("DistanceX", 4, 2, 4, 1, 6.0),
    Sketcher.Constraint("DistanceY", 1, 2, 1, 1, 11.0),
    Sketcher.Constraint("DistanceX", -1, 1, 2, 2, 13.0),
    Sketcher.Constraint("DistanceY", 3, 2, 1, 2, 3.0),
    Sketcher.Constraint("DistanceY", 3, 2, 3, 1, 2.56066),
])
sketch5.setExpression("Constraints[29]", "Params.sketch5_width")
sketch5.setExpression("Constraints[30]", "Params.sketch5_height")
pocket1 = body.newObject("PartDesign::Pocket", "Pocket")
pocket1.Profile = sketch5
pocket1.Type = "ThroughAll"
pocket1.Reversed = True
doc.recompute()

fillet = body.newObject("PartDesign::Fillet", "Fillet")
fillet.Base = (pocket1, edges_at(pocket1, [
    (13, 5.939, 25),
    (13, 8.5, 25),
    (7, 8.5, 25),
    (7, 5.939, 25),
    (7, -5.939, 25),
    (7, -8.5, 25),
    (13, -8.5, 25),
    (13, -5.939, 25),
]))
fillet.setExpression("Radius", "Params.fillet_radius")
doc.recompute()

fillet2 = body.newObject("PartDesign::Fillet", "Fillet001")
fillet2.Base = (fillet, edges_at(fillet, [
    (30, -10, 25),
    (30, 10, 25),
    (-10, 10, 25),
    (-10, -10, 25),
]))
fillet2.setExpression("Radius", "Params.fillet2_radius")

doc.recompute()
